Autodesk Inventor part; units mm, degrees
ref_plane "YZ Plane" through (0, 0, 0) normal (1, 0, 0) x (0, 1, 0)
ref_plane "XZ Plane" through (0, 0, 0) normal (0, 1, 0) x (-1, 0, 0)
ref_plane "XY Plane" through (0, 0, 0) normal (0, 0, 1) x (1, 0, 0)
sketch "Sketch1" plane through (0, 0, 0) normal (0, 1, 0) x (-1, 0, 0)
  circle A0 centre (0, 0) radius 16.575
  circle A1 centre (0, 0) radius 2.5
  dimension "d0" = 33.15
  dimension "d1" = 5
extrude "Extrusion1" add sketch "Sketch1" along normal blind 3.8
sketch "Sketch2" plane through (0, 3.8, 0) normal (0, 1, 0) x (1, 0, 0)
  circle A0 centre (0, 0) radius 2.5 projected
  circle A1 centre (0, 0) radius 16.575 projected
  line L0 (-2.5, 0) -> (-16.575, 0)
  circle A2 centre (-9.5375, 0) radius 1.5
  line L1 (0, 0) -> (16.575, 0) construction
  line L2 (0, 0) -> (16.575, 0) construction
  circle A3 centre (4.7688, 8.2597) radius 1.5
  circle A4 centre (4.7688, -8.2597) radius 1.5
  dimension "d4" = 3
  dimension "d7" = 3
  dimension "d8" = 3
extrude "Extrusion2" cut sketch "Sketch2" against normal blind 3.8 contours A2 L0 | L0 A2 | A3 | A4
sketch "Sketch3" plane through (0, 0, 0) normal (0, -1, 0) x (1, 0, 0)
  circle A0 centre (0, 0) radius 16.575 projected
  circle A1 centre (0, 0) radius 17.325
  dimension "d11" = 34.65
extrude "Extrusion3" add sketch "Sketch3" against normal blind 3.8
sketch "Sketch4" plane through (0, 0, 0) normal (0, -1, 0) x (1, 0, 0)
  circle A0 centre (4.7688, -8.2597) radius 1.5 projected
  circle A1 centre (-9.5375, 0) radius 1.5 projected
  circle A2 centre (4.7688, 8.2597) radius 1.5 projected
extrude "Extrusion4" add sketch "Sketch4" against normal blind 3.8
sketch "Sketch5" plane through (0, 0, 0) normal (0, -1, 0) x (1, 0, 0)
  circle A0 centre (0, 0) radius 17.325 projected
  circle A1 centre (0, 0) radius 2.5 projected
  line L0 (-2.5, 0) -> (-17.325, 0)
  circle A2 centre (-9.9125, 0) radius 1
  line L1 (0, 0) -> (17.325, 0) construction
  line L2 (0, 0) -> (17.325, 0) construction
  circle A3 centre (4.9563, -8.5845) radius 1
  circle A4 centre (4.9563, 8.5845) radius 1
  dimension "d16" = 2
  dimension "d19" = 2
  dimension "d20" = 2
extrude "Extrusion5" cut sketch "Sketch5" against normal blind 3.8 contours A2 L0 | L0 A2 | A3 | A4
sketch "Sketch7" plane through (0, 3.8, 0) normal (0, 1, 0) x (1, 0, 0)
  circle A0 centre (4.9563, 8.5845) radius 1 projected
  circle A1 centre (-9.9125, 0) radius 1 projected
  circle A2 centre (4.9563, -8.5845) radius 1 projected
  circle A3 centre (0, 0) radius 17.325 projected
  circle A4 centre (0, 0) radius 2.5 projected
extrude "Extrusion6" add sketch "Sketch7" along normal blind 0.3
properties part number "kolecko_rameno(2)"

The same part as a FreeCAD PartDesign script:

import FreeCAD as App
import Part
import Sketcher
from FreeCAD import Vector
Q = App.Units.Quantity

doc = App.newDocument("Part")
params = doc.addObject("Spreadsheet::Sheet", "Params")
for row, (alias, value) in enumerate([
    ("sketch1_diameter", "5 mm"),
    ("sketch1_diameter2", "33.15 mm"),
    ("pad1_length", "3.8 mm"),
    ("sketch2_diameter", "3 mm"),
    ("pocket1_length", "3.8 mm"),
    ("sketch3_diameter", "34.65 mm"),
    ("sketch3_diameter2", "33.15 mm"),
    ("pad2_length", "3.8 mm"),
    ("sketch4_diameter", "3 mm"),
    ("pad3_length", "3.8 mm"),
    ("sketch5_diameter", "2 mm"),
    ("pocket2_length", "3.8 mm"),
    ("sketch6_diameter", "2 mm"),
    ("sketch6_diameter2", "5 mm"),
    ("sketch6_diameter3", "34.65 mm"),
    ("pad4_length", "0.3 mm"),
], start=1):
    params.set(f"A{row}", alias)
    params.set(f"B{row}", "=" + value)
    params.setAlias(f"B{row}", alias)

body = doc.addObject("PartDesign::Body", "Body")

# Sketch on XZ plane
sketch1 = body.newObject("Sketcher::SketchObject", "Sketch")
sketch1.AttachmentSupport = (doc.getObject("XZ_Plane"), [""])
sketch1.MapMode = "FlatFace"
sketch1.addGeometry([
    Part.Circle(Vector(0, 0, 0), Vector(0, 0, 1), 16.6),
    Part.Circle(Vector(0, 0, 0), Vector(0, 0, 1), 2.5),
], False)
sketch1.addConstraint([
    Sketcher.Constraint("Coincident", 0, 3, -1, 1),
    Sketcher.Constraint("Coincident", 1, 3, -1, 1),
    Sketcher.Constraint("Diameter", 1, Q("5 mm")),
    Sketcher.Constraint("Diameter", 0, Q("33.15 mm")),
])
sketch1.setExpression("Constraints[2]", "Params.sketch1_diameter")
sketch1.setExpression("Constraints[3]", "Params.sketch1_diameter2")
pad1 = body.newObject("PartDesign::Pad", "Pad")
pad1.Profile = sketch1
pad1.setExpression("Length", "Params.pad1_length")
pad1.Reversed = True

# Sketch on XZ plane
sketch2 = body.newObject("Sketcher::SketchObject", "Sketch001")
sketch2.AttachmentSupport = (doc.getObject("XZ_Plane"), [""])
sketch2.MapMode = "FlatFace"
sketch2.AttachmentOffset = App.Placement(Vector(0, 0, -3.8), App.Rotation())
sketch2.addGeometry([
    Part.Circle(Vector(-9.5, 0, 0), Vector(0, 0, 1), 1.5),
    Part.Circle(Vector(4.8, -8.3, 0), Vector(0, 0, 1), 1.5),
    Part.Circle(Vector(4.8, 8.3, 0), Vector(0, 0, 1), 1.5),
], False)
sketch2.addConstraint([
    Sketcher.Constraint("Equal", 0, 1),
    Sketcher.Constraint("Equal", 1, 2),
    Sketcher.Constraint("Symmetric", 1, 3, 2, 3, -1),
    Sketcher.Constraint("PointOnObject", 0, 3, -1),
    Sketcher.Constraint("Diameter", 0, Q("3 mm")),
    Sketcher.Constraint("DistanceX", 0, 3, -1, 1, Q("9.5375 mm")),
    Sketcher.Constraint("DistanceX", -1, 1, 1, 3, Q("4.7688 mm")),
    Sketcher.Constraint("DistanceY", 1, 3, -1, 1, Q("8.2597 mm")),
])
sketch2.setExpression("Constraints[4]", "Params.sketch2_diameter")
pocket1 = body.newObject("PartDesign::Pocket", "Pocket")
pocket1.Profile = sketch2
pocket1.setExpression("Length", "Params.pocket1_length")
pocket1.Reversed = True

# Sketch on XZ plane
sketch3 = body.newObject("Sketcher::SketchObject", "Sketch002")
sketch3.AttachmentSupport = (doc.getObject("XZ_Plane"), [""])
sketch3.MapMode = "FlatFace"
sketch3.addGeometry([
    Part.Circle(Vector(0, 0, 0), Vector(0, 0, 1), 17),
    Part.Circle(Vector(0, 0, 0), Vector(0, 0, 1), 17),
], False)
sketch3.addConstraint([
    Sketcher.Constraint("Coincident", 0, 3, -1, 1),
    Sketcher.Constraint("Coincident", 1, 3, -1, 1),
    Sketcher.Constraint("Diameter", 0, Q("34.65 mm")),
    Sketcher.Constraint("Diameter", 1, Q("33.15 mm")),
])
sketch3.setExpression("Constraints[2]", "Params.sketch3_diameter")
sketch3.setExpression("Constraints[3]", "Params.sketch3_diameter2")
pad2 = body.newObject("PartDesign::Pad", "Pad001")
pad2.Profile = sketch3
pad2.setExpression("Length", "Params.pad2_length")
pad2.Reversed = True

# Sketch on XZ plane
sketch4 = body.newObject("Sketcher::SketchObject", "Sketch003")
sketch4.AttachmentSupport = (doc.getObject("XZ_Plane"), [""])
sketch4.MapMode = "FlatFace"
sketch4.addGeometry([
    Part.Circle(Vector(4.8, -8.3, 0), Vector(0, 0, 1), 1.5),
    Part.Circle(Vector(-9.5, 0, 0), Vector(0, 0, 1), 1.5),
    Part.Circle(Vector(4.8, 8.3, 0), Vector(0, 0, 1), 1.5),
], False)
sketch4.addConstraint([
    Sketcher.Constraint("Equal", 0, 1),
    Sketcher.Constraint("Equal", 1, 2),
    Sketcher.Constraint("Symmetric", 0, 3, 2, 3, -1),
    Sketcher.Constraint("PointOnObject", 1, 3, -1),
    Sketcher.Constraint("Diameter", 0, Q("3 mm")),
    Sketcher.Constraint("DistanceX", -1, 1, 0, 3, Q("4.7688 mm")),
    Sketcher.Constraint("DistanceY", 0, 3, -1, 1, Q("8.2597 mm")),
    Sketcher.Constraint("DistanceX", 1, 3, -1, 1, Q("9.5375 mm")),
])
sketch4.setExpression("Constraints[4]", "Params.sketch4_diameter")
pad3 = body.newObject("PartDesign::Pad", "Pad002")
pad3.Profile = sketch4
pad3.setExpression("Length", "Params.pad3_length")
pad3.Reversed = True

# Sketch on XZ plane
sketch5 = body.newObject("Sketcher::SketchObject", "Sketch004")
sketch5.AttachmentSupport = (doc.getObject("XZ_Plane"), [""])
sketch5.MapMode = "FlatFace"
sketch5.addGeometry([
    Part.Circle(Vector(-9.9, 0, 0), Vector(0, 0, 1), 1),
    Part.Circle(Vector(5, -8.6, 0), Vector(0, 0, 1), 1),
    Part.Circle(Vector(5, 8.6, 0), Vector(0, 0, 1), 1),
], False)
sketch5.addConstraint([
    Sketcher.Constraint("Equal", 0, 1),
    Sketcher.Constraint("Equal", 1, 2),
    Sketcher.Constraint("Symmetric", 1, 3, 2, 3, -1),
    Sketcher.Constraint("PointOnObject", 0, 3, -1),
    Sketcher.Constraint("Diameter", 0, Q("2 mm")),
    Sketcher.Constraint("DistanceY", 1, 3, 2, 3, Q("17.169 mm")),
    Sketcher.Constraint("DistanceX", 0, 3, -1, 1, Q("9.9125 mm")),
    Sketcher.Constraint("DistanceX", -1, 1, 1, 3, Q("4.9563 mm")),
])
sketch5.setExpression("Constraints[4]", "Params.sketch5_diameter")
pocket2 = body.newObject("PartDesign::Pocket", "Pocket001")
pocket2.Profile = sketch5
pocket2.setExpression("Length", "Params.pocket2_length")

# Sketch on XZ plane
sketch6 = body.newObject("Sketcher::SketchObject", "Sketch005")
sketch6.AttachmentSupport = (doc.getObject("XZ_Plane"), [""])
sketch6.MapMode = "FlatFace"
sketch6.AttachmentOffset = App.Placement(Vector(0, 0, -3.8), App.Rotation())
sketch6.addGeometry([
    Part.Circle(Vector(0, 0, 0), Vector(0, 0, 1), 17.3),  # 0
    Part.Circle(Vector(5, 8.6, 0), Vector(0, 0, 1), 1),  # 1
    Part.Circle(Vector(-9.9, 0, 0), Vector(0, 0, 1), 1),  # 2
    Part.Circle(Vector(0, 0, 0), Vector(0, 0, 1), 2.5),  # 3
    Part.Circle(Vector(5, -8.6, 0), Vector(0, 0, 1), 1),  # 4
], False)
sketch6.addConstraint([
    Sketcher.Constraint("Coincident", 0, 3, -1, 1),
    Sketcher.Constraint("Coincident", 3, 3, -1, 1),
    Sketcher.Constraint("Equal", 1, 2),
    Sketcher.Constraint("Equal", 2, 4),
    Sketcher.Constraint("Symmetric", 1, 3, 4, 3, -1),
    Sketcher.Constraint("PointOnObject", 2, 3, -1),
    Sketcher.Constraint("Diameter", 1, Q("2 mm")),
    Sketcher.Constraint("Diameter", 3, Q("5 mm")),
    Sketcher.Constraint("Diameter", 0, Q("34.65 mm")),
    Sketcher.Constraint("DistanceY", 4, 3, 1, 3, Q("17.169 mm")),
    Sketcher.Constraint("DistanceX", -1, 1, 1, 3, Q("4.9563 mm")),
    Sketcher.Constraint("DistanceX", 2, 3, -1, 1, Q("9.9125 mm")),
])
sketch6.setExpression("Constraints[6]", "Params.sketch6_diameter")
sketch6.setExpression("Constraints[7]", "Params.sketch6_diameter2")
sketch6.setExpression("Constraints[8]", "Params.sketch6_diameter3")
pad4 = body.newObject("PartDesign::Pad", "Pad003")
pad4.Profile = sketch6
pad4.setExpression("Length", "Params.pad4_length")
pad4.Reversed = True

doc.recompute()
